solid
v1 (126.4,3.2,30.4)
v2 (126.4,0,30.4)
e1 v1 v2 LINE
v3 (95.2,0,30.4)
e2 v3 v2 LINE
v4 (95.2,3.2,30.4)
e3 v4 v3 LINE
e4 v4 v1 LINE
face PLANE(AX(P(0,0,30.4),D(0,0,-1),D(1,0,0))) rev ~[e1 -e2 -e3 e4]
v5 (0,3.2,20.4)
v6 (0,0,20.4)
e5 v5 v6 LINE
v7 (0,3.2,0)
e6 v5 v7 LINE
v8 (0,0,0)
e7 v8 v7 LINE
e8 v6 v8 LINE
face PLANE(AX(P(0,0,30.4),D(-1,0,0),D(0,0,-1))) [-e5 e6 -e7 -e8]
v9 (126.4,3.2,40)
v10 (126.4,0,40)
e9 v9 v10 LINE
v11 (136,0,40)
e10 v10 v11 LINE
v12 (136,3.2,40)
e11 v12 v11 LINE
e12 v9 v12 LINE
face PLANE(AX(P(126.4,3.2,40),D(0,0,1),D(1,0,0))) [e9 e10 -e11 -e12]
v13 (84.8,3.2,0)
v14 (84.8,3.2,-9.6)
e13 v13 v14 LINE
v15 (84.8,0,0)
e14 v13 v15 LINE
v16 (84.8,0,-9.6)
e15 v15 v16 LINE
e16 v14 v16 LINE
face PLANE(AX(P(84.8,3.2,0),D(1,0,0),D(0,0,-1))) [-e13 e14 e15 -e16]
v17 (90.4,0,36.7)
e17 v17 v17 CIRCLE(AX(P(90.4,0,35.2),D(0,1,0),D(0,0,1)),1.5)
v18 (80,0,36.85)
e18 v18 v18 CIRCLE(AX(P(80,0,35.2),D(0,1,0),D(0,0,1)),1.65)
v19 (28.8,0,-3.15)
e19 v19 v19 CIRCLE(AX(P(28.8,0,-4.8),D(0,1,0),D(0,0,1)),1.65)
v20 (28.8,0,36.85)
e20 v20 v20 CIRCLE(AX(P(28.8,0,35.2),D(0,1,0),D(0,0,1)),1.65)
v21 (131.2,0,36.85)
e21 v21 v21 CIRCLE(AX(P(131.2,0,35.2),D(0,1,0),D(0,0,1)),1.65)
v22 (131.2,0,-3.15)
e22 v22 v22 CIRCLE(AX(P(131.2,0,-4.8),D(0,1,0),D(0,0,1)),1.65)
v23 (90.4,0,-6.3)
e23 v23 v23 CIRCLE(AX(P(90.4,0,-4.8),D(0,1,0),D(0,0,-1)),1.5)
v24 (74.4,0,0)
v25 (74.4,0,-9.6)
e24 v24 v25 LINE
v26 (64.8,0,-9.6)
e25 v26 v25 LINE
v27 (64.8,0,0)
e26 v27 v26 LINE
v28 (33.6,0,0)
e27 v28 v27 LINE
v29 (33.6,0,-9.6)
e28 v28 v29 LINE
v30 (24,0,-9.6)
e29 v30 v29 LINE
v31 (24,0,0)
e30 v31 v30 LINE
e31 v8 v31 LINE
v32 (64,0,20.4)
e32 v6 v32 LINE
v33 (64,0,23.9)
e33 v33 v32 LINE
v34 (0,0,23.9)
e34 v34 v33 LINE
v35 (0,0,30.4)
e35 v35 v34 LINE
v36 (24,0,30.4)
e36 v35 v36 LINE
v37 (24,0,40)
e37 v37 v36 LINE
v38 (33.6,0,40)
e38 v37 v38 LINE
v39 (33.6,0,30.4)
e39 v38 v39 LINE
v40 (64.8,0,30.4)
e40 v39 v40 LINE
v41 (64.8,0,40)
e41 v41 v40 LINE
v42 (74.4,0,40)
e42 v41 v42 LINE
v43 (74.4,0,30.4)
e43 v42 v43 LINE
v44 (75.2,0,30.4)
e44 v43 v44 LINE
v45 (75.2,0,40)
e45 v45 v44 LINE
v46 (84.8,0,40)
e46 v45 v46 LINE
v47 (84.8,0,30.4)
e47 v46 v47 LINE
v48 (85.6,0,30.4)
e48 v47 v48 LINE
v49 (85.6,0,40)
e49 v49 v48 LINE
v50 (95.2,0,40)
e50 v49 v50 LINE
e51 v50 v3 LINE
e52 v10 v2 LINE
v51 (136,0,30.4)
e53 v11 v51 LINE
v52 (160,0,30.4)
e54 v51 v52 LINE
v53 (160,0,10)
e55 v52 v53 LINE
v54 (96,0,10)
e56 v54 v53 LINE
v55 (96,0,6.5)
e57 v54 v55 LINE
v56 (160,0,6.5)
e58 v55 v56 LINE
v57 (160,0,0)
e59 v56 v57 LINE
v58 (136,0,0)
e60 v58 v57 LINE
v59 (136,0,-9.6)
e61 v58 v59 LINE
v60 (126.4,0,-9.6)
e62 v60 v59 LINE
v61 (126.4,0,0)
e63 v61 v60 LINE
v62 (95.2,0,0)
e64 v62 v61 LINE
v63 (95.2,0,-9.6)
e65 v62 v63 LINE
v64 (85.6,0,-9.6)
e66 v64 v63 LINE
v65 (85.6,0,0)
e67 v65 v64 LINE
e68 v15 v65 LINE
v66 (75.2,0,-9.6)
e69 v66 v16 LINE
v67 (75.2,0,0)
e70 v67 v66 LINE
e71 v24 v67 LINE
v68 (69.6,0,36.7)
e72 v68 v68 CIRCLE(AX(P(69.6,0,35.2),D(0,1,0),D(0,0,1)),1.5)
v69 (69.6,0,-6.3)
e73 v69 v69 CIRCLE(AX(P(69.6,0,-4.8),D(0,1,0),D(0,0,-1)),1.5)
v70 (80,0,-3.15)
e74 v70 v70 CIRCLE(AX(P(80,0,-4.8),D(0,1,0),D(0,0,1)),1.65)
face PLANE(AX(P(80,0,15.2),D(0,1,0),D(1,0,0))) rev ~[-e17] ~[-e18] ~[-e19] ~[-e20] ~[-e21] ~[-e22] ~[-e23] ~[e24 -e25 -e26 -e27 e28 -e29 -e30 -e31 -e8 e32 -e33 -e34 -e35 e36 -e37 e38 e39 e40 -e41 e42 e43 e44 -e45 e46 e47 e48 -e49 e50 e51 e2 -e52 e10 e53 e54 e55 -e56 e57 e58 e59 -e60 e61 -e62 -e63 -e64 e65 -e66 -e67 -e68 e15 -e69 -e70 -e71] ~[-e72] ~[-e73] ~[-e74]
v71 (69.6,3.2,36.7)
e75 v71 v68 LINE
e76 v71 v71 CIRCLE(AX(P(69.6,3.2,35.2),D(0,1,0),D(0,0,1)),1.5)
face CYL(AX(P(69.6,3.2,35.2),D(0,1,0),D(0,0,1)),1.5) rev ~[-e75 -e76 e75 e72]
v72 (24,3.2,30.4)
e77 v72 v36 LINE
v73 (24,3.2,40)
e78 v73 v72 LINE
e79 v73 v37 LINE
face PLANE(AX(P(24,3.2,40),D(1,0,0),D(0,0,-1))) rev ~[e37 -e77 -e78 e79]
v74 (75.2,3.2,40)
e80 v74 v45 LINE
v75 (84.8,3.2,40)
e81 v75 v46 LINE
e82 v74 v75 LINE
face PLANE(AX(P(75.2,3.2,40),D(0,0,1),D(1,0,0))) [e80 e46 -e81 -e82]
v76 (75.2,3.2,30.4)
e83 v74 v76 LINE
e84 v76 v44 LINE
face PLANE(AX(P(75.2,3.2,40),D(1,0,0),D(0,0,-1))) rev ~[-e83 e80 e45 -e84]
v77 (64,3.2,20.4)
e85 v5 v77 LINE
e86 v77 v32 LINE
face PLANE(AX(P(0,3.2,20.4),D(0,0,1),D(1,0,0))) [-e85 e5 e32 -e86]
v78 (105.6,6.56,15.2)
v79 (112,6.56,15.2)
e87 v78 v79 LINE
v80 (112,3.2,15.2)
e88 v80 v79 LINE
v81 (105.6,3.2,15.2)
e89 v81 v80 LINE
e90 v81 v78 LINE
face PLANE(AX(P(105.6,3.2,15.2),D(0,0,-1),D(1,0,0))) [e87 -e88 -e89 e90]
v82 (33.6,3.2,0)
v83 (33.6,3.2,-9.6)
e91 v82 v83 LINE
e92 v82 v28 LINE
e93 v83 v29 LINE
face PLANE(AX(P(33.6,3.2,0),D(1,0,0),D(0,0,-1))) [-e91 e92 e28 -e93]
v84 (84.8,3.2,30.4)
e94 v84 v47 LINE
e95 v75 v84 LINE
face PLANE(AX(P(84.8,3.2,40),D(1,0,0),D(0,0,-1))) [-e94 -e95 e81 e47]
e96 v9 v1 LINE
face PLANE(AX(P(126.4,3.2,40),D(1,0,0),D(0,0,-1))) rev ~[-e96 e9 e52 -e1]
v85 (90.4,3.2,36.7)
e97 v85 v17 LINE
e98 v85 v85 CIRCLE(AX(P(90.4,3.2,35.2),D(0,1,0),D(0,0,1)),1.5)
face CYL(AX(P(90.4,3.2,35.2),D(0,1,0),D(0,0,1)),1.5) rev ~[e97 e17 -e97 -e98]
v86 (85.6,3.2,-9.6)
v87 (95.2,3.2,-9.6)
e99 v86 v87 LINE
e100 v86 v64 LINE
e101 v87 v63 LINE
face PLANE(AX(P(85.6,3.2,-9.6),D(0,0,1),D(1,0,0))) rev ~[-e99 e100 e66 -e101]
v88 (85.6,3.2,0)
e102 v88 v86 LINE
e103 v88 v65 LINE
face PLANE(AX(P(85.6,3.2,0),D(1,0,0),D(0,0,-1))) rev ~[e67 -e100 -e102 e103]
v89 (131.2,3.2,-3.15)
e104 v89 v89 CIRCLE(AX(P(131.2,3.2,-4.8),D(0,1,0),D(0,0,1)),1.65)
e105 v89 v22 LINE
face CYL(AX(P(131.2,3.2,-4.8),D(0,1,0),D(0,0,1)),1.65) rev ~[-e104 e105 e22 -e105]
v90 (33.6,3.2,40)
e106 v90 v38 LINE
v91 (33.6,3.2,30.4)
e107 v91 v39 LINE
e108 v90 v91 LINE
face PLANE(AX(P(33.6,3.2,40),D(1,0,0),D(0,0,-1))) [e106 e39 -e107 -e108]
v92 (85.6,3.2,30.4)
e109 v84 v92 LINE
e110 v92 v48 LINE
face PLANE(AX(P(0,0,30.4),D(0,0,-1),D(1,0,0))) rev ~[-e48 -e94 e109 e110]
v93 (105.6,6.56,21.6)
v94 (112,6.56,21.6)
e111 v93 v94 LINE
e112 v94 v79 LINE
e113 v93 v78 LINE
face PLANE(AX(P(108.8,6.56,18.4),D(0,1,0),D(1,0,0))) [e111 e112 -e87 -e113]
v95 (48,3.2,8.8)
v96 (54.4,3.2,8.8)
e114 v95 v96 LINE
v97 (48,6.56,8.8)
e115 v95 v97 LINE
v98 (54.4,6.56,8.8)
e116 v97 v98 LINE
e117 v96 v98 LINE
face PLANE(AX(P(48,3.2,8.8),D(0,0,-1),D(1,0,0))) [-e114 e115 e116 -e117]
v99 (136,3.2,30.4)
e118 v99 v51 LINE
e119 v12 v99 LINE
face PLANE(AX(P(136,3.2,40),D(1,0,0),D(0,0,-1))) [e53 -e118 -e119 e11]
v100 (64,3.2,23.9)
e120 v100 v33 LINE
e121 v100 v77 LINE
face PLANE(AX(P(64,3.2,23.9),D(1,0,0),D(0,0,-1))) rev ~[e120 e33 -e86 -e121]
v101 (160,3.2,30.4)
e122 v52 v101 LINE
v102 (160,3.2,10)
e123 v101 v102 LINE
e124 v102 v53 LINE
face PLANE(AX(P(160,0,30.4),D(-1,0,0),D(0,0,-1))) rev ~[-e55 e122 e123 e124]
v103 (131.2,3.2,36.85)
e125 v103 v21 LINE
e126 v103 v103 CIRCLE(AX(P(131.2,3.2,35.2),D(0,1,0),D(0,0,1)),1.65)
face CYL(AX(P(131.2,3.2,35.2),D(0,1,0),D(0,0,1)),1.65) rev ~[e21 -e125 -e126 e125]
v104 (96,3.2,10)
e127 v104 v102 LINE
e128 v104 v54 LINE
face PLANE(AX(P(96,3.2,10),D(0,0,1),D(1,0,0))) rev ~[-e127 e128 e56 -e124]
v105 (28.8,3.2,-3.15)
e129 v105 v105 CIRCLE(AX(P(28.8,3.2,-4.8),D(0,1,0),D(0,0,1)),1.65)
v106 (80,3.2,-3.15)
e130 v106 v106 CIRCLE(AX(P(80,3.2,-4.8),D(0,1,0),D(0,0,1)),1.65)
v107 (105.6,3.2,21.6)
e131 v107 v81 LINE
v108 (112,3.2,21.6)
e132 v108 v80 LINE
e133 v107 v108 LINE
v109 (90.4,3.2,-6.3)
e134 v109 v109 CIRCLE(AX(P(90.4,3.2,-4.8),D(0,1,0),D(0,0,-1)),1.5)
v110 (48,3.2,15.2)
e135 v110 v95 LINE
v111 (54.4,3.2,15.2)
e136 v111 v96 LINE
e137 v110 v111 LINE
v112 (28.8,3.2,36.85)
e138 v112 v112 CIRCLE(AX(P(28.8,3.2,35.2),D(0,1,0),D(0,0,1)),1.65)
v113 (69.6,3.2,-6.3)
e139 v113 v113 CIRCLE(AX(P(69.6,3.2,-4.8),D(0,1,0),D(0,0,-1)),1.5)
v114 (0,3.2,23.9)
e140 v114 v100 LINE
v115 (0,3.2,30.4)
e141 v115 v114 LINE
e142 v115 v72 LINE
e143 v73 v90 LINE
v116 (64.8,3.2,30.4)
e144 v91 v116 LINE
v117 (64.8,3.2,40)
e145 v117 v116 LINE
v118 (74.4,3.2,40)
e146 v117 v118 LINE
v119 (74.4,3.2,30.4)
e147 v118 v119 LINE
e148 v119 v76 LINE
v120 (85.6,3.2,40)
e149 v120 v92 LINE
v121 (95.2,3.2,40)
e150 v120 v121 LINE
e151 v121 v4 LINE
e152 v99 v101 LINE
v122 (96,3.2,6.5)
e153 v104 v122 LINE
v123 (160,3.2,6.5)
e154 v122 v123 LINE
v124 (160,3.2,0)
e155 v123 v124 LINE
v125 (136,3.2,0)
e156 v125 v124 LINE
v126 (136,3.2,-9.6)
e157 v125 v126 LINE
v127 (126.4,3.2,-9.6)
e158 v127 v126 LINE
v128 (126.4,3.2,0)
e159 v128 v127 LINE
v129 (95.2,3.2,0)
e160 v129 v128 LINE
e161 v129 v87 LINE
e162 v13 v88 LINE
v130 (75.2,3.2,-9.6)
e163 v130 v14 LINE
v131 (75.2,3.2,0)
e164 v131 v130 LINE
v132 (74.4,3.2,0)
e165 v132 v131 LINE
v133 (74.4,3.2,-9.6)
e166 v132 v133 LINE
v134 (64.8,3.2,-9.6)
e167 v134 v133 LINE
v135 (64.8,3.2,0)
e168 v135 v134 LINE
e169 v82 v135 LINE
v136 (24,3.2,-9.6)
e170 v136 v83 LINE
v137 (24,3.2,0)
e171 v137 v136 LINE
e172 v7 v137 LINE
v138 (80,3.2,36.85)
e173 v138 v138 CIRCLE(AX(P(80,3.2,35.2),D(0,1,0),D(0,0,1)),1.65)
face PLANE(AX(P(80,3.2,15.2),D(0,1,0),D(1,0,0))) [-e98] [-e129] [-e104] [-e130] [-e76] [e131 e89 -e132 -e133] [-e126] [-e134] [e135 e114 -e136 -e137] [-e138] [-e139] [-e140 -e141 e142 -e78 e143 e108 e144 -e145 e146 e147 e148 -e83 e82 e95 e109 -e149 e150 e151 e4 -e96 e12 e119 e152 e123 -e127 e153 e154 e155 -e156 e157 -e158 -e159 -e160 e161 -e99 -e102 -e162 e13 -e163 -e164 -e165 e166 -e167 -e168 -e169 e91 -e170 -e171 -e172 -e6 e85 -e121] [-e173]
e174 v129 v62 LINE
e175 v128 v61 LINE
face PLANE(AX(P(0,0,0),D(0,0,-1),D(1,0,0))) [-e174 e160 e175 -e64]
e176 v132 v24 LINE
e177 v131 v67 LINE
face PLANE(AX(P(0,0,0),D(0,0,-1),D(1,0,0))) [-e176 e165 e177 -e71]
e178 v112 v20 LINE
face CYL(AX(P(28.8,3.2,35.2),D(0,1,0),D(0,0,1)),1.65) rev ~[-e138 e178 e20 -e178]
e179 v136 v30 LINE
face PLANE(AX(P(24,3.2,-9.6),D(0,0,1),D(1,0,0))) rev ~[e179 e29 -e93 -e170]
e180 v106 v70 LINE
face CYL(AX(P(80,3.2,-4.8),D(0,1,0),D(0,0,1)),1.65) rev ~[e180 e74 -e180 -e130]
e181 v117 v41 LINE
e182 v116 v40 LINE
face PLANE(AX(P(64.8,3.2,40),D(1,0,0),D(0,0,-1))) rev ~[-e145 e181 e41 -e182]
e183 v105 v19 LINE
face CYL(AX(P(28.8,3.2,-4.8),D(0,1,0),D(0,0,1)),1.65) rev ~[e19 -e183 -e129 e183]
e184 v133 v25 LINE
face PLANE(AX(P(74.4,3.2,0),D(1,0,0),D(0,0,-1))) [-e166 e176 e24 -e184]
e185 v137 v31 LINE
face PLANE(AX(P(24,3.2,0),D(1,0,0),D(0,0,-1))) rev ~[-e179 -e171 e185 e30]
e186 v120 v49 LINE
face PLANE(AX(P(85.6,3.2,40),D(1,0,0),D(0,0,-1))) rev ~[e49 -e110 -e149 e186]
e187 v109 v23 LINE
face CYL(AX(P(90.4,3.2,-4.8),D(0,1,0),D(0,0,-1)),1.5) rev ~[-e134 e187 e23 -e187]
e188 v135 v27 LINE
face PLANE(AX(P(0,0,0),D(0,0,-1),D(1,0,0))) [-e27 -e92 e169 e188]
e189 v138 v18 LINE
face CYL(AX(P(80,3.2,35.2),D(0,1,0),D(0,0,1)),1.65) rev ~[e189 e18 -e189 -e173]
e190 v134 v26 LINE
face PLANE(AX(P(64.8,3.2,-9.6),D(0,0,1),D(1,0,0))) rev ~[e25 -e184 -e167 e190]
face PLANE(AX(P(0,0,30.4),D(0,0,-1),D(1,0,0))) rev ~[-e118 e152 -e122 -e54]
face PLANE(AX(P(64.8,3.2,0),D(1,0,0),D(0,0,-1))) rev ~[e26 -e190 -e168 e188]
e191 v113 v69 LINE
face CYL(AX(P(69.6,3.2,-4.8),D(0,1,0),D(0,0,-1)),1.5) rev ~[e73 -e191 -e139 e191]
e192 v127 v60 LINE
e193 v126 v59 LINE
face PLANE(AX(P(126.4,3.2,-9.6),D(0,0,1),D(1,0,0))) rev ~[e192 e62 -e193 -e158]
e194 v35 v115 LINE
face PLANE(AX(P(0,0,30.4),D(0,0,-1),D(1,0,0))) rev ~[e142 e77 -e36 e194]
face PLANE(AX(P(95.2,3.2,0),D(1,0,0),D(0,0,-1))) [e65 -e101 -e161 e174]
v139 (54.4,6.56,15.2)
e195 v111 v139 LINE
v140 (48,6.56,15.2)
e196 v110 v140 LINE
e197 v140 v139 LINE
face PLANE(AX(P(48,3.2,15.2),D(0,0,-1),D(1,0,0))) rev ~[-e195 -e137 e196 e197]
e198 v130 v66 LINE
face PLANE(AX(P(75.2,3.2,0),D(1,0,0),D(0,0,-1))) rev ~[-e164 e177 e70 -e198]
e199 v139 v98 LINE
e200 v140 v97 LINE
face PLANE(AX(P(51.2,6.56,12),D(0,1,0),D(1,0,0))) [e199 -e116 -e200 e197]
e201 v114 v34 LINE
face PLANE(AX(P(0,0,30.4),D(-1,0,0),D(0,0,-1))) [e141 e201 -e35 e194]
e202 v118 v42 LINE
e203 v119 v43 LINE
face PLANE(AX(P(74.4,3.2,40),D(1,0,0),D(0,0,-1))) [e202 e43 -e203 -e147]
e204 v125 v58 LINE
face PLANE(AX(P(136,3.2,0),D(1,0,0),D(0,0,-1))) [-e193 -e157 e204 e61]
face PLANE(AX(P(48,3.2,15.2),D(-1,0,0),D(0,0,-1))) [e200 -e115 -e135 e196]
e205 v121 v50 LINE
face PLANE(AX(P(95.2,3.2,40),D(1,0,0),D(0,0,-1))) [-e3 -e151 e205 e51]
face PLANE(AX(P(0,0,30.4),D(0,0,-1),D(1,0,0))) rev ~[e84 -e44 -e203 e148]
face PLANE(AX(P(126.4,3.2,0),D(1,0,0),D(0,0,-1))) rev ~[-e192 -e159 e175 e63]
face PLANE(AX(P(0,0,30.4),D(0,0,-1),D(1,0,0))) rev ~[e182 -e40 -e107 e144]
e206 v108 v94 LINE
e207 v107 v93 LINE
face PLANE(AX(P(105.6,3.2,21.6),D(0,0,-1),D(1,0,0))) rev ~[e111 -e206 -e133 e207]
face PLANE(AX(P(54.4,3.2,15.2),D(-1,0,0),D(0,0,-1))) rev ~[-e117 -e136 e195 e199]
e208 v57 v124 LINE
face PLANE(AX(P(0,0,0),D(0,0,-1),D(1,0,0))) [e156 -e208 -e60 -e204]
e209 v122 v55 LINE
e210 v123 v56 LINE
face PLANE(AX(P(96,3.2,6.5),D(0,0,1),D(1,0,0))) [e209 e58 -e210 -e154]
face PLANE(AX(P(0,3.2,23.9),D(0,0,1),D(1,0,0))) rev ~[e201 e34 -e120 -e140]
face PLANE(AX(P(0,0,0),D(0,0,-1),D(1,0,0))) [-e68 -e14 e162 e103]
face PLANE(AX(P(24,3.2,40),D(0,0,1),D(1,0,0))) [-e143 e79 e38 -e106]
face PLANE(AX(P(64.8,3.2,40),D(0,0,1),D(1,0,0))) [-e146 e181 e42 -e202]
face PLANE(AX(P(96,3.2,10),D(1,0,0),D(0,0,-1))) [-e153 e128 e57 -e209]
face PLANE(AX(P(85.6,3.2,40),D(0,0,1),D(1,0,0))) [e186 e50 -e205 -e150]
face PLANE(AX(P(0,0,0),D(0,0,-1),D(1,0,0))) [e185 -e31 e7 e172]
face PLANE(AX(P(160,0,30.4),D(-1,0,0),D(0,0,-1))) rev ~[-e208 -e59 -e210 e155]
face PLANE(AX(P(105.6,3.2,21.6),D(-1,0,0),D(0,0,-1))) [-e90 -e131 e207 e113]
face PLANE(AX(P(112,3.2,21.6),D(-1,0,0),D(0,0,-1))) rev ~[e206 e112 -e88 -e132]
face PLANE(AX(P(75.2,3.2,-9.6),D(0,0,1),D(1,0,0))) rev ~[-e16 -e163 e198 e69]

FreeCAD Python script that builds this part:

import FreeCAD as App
import Part
import Sketcher

V = App.Vector
Q = App.Units.Quantity

doc = App.newDocument("Part")
body = doc.addObject("PartDesign::Body", "Body")

# Sketch on XZ plane
sketch1 = doc.addObject("Sketcher::SketchObject", "Sketch")
body.addObject(sketch1)
sketch1.AttachmentSupport = (doc.XZ_Plane, [""])
sketch1.MapMode = "FlatFace"
sketch1.addGeometry(Part.LineSegment(V(0, 0, 0), V(0, 30.4, 0)), False)
sketch1.addGeometry(Part.LineSegment(V(0, 30.4, 0), V(160, 30.4, 0)), False)
sketch1.addGeometry(Part.LineSegment(V(160, 30.4, 0), V(160, 0, 0)), False)
sketch1.addGeometry(Part.LineSegment(V(160, 0, 0), V(0, 0, 0)), False)
sketch1.addConstraint(Sketcher.Constraint("Coincident", 0, 2, 1, 1))
sketch1.addConstraint(Sketcher.Constraint("Coincident", 1, 2, 2, 1))
sketch1.addConstraint(Sketcher.Constraint("Coincident", 2, 2, 3, 1))
sketch1.addConstraint(Sketcher.Constraint("Coincident", 3, 2, 0, 1))
sketch1.addConstraint(Sketcher.Constraint("Vertical", 0))
sketch1.addConstraint(Sketcher.Constraint("Horizontal", 1))
sketch1.addConstraint(Sketcher.Constraint("Vertical", 2))
sketch1.addConstraint(Sketcher.Constraint("Horizontal", 3))
sketch1.addConstraint(Sketcher.Constraint("Coincident", 3, 2, -1, 1))
sketch1.addConstraint(Sketcher.Constraint("DistanceX", 1, 1, 1, 2, Q("160 mm")))
sketch1.addConstraint(Sketcher.Constraint("DistanceY", 0, 1, 0, 2, Q("30.4 mm")))
pad1 = doc.addObject("PartDesign::Pad", "Pad")
body.addObject(pad1)
pad1.Profile = sketch1
pad1.Length = 3.2
pad1.Reversed = True

# Sketch on XZ plane
sketch2 = doc.addObject("Sketcher::SketchObject", "Sketch001")
body.addObject(sketch2)
sketch2.AttachmentSupport = (doc.XZ_Plane, [""])
sketch2.MapMode = "FlatFace"
sketch2.AttachmentOffset = App.Placement(V(0, 0, -3.2), App.Rotation())
sketch2.addGeometry(Part.LineSegment(V(24, 30.4, 0), V(24, 40, 0)), False)
sketch2.addGeometry(Part.LineSegment(V(24, 40, 0), V(33.6, 40, 0)), False)
sketch2.addGeometry(Part.LineSegment(V(33.6, 40, 0), V(33.6, 30.4, 0)), False)
sketch2.addGeometry(Part.LineSegment(V(33.6, 30.4, 0), V(24, 30.4, 0)), False)
sketch2.addGeometry(Part.Circle(V(28.8, 35.2, 0), V(0, 0, 1), 1.65), False)
sketch2.addGeometry(Part.LineSegment(V(75.2, 30.4, 0), V(75.2, 40, 0)), False)
sketch2.addGeometry(Part.LineSegment(V(75.2, 40, 0), V(84.8, 40, 0)), False)
sketch2.addGeometry(Part.LineSegment(V(84.8, 40, 0), V(84.8, 30.4, 0)), False)
sketch2.addGeometry(Part.LineSegment(V(84.8, 30.4, 0), V(75.2, 30.4, 0)), False)
sketch2.addGeometry(Part.Circle(V(80, 35.2, 0), V(0, 0, 1), 1.65), False)
sketch2.addGeometry(Part.LineSegment(V(126.4, 30.4, 0), V(126.4, 40, 0)), False)
sketch2.addGeometry(Part.LineSegment(V(126.4, 40, 0), V(136, 40, 0)), False)
sketch2.addGeometry(Part.LineSegment(V(136, 40, 0), V(136, 30.4, 0)), False)
sketch2.addGeometry(Part.LineSegment(V(136, 30.4, 0), V(126.4, 30.4, 0)), False)
sketch2.addGeometry(Part.Circle(V(131.2, 35.2, 0), V(0, 0, 1), 1.65), False)
sketch2.addGeometry(Part.LineSegment(V(75.2, -9.6, 0), V(75.2, 0, 0)), False)
sketch2.addGeometry(Part.LineSegment(V(75.2, 0, 0), V(84.8, 0, 0)), False)
sketch2.addGeometry(Part.LineSegment(V(84.8, 0, 0), V(84.8, -9.6, 0)), False)
sketch2.addGeometry(Part.LineSegment(V(84.8, -9.6, 0), V(75.2, -9.6, 0)), False)
sketch2.addGeometry(Part.Circle(V(80, -4.8, 0), V(0, 0, 1), 1.65), False)
sketch2.addGeometry(Part.LineSegment(V(126.4, -9.6, 0), V(126.4, 0, 0)), False)
sketch2.addGeometry(Part.LineSegment(V(126.4, 0, 0), V(136, 0, 0)), False)
sketch2.addGeometry(Part.LineSegment(V(136, 0, 0), V(136, -9.6, 0)), False)
sketch2.addGeometry(Part.LineSegment(V(136, -9.6, 0), V(126.4, -9.6, 0)), False)
sketch2.addGeometry(Part.Circle(V(131.2, -4.8, 0), V(0, 0, 1), 1.65), False)
sketch2.addGeometry(Part.LineSegment(V(24, -9.6, 0), V(24, 0, 0)), False)
sketch2.addGeometry(Part.LineSegment(V(24, 0, 0), V(33.6, 0, 0)), False)
sketch2.addGeometry(Part.LineSegment(V(33.6, 0, 0), V(33.6, -9.6, 0)), False)
sketch2.addGeometry(Part.LineSegment(V(33.6, -9.6, 0), V(24, -9.6, 0)), False)
sketch2.addGeometry(Part.Circle(V(28.8, -4.8, 0), V(0, 0, 1), 1.65), False)
sketch2.addConstraint(Sketcher.Constraint("Coincident", 0, 2, 1, 1))
sketch2.addConstraint(Sketcher.Constraint("Coincident", 1, 2, 2, 1))
sketch2.addConstraint(Sketcher.Constraint("Coincident", 2, 2, 3, 1))
sketch2.addConstraint(Sketcher.Constraint("Coincident", 3, 2, 0, 1))
sketch2.addConstraint(Sketcher.Constraint("Coincident", 5, 2, 6, 1))
sketch2.addConstraint(Sketcher.Constraint("Coincident", 6, 2, 7, 1))
sketch2.addConstraint(Sketcher.Constraint("Coincident", 7, 2, 8, 1))
sketch2.addConstraint(Sketcher.Constraint("Coincident", 8, 2, 5, 1))
sketch2.addConstraint(Sketcher.Constraint("Coincident", 10, 2, 11, 1))
sketch2.addConstraint(Sketcher.Constraint("Coincident", 11, 2, 12, 1))
sketch2.addConstraint(Sketcher.Constraint("Coincident", 12, 2, 13, 1))
sketch2.addConstraint(Sketcher.Constraint("Coincident", 13, 2, 10, 1))
sketch2.addConstraint(Sketcher.Constraint("Coincident", 15, 2, 16, 1))
sketch2.addConstraint(Sketcher.Constraint("Coincident", 16, 2, 17, 1))
sketch2.addConstraint(Sketcher.Constraint("Coincident", 17, 2, 18, 1))
sketch2.addConstraint(Sketcher.Constraint("Coincident", 18, 2, 15, 1))
sketch2.addConstraint(Sketcher.Constraint("Coincident", 20, 2, 21, 1))
sketch2.addConstraint(Sketcher.Constraint("Coincident", 21, 2, 22, 1))
sketch2.addConstraint(Sketcher.Constraint("Coincident", 22, 2, 23, 1))
sketch2.addConstraint(Sketcher.Constraint("Coincident", 23, 2, 20, 1))
sketch2.addConstraint(Sketcher.Constraint("Coincident", 25, 2, 26, 1))
sketch2.addConstraint(Sketcher.Constraint("Coincident", 26, 2, 27, 1))
sketch2.addConstraint(Sketcher.Constraint("Coincident", 27, 2, 28, 1))
sketch2.addConstraint(Sketcher.Constraint("Coincident", 28, 2, 25, 1))
sketch2.addConstraint(Sketcher.Constraint("Vertical", 0))
sketch2.addConstraint(Sketcher.Constraint("Horizontal", 1))
sketch2.addConstraint(Sketcher.Constraint("Vertical", 2))
sketch2.addConstraint(Sketcher.Constraint("Horizontal", 3))
sketch2.addConstraint(Sketcher.Constraint("Vertical", 5))
sketch2.addConstraint(Sketcher.Constraint("Horizontal", 6))
sketch2.addConstraint(Sketcher.Constraint("Vertical", 7))
sketch2.addConstraint(Sketcher.Constraint("Horizontal", 8))
sketch2.addConstraint(Sketcher.Constraint("Vertical", 10))
sketch2.addConstraint(Sketcher.Constraint("Horizontal", 11))
sketch2.addConstraint(Sketcher.Constraint("Vertical", 12))
sketch2.addConstraint(Sketcher.Constraint("Horizontal", 13))
sketch2.addConstraint(Sketcher.Constraint("Vertical", 15))
sketch2.addConstraint(Sketcher.Constraint("Horizontal", 16))
sketch2.addConstraint(Sketcher.Constraint("Vertical", 17))
sketch2.addConstraint(Sketcher.Constraint("Horizontal", 18))
sketch2.addConstraint(Sketcher.Constraint("Vertical", 20))
sketch2.addConstraint(Sketcher.Constraint("Horizontal", 21))
sketch2.addConstraint(Sketcher.Constraint("Vertical", 22))
sketch2.addConstraint(Sketcher.Constraint("Horizontal", 23))
sketch2.addConstraint(Sketcher.Constraint("Vertical", 25))
sketch2.addConstraint(Sketcher.Constraint("Horizontal", 26))
sketch2.addConstraint(Sketcher.Constraint("Vertical", 27))
sketch2.addConstraint(Sketcher.Constraint("Horizontal", 28))
sketch2.addConstraint(Sketcher.Constraint("Equal", 4, 9))
sketch2.addConstraint(Sketcher.Constraint("Equal", 9, 14))
sketch2.addConstraint(Sketcher.Constraint("Equal", 14, 19))
sketch2.addConstraint(Sketcher.Constraint("Equal", 19, 24))
sketch2.addConstraint(Sketcher.Constraint("Equal", 24, 29))
sketch2.addConstraint(Sketcher.Constraint("PointOnObject", 15, 2, -1))
sketch2.addConstraint(Sketcher.Constraint("PointOnObject", 20, 2, -1))
sketch2.addConstraint(Sketcher.Constraint("PointOnObject", 25, 2, -1))
sketch2.addConstraint(Sketcher.Constraint("Horizontal", 4, 3, 9, 3))
sketch2.addConstraint(Sketcher.Constraint("Horizontal", 9, 3, 14, 3))
sketch2.addConstraint(Sketcher.Constraint("Horizontal", 19, 3, 24, 3))
sketch2.addConstraint(Sketcher.Constraint("Horizontal", 24, 3, 29, 3))
sketch2.addConstraint(Sketcher.Constraint("Horizontal", 1, 2, 5, 2))
sketch2.addConstraint(Sketcher.Constraint("Horizontal", 3, 2, 7, 2))
sketch2.addConstraint(Sketcher.Constraint("Horizontal", 6, 2, 10, 2))
sketch2.addConstraint(Sketcher.Constraint("Horizontal", 8, 2, 12, 2))
sketch2.addConstraint(Sketcher.Constraint("Horizontal", 18, 2, 22, 2))
sketch2.addConstraint(Sketcher.Constraint("Horizontal", 23, 2, 27, 2))
sketch2.addConstraint(Sketcher.Constraint("Vertical", 9, 3, 19, 3))
sketch2.addConstraint(Sketcher.Constraint("Vertical", 14, 3, 24, 3))
sketch2.addConstraint(Sketcher.Constraint("Vertical", 4, 3, 29, 3))
sketch2.addConstraint(Sketcher.Constraint("Vertical", 8, 2, 15, 2))
sketch2.addConstraint(Sketcher.Constraint("Vertical", 7, 2, 16, 2))
sketch2.addConstraint(Sketcher.Constraint("Vertical", 13, 2, 20, 2))
sketch2.addConstraint(Sketcher.Constraint("Vertical", 12, 2, 21, 2))
sketch2.addConstraint(Sketcher.Constraint("Vertical", 3, 2, 25, 2))
sketch2.addConstraint(Sketcher.Constraint("Vertical", 2, 2, 26, 2))
sketch2.addConstraint(Sketcher.Constraint("Equal", 3, 6))
sketch2.addConstraint(Sketcher.Constraint("Equal", 8, 11))
sketch2.addConstraint(Sketcher.Constraint("Equal", 28, 0))
sketch2.addConstraint(Sketcher.Constraint("Equal", 12, 15))
sketch2.addConstraint(Sketcher.Constraint("Diameter", 4, Q("3.3 mm")))
sketch2.addConstraint(Sketcher.Constraint("DistanceX", 1, 1, 1, 2, Q("9.6 mm")))
sketch2.addConstraint(Sketcher.Constraint("DistanceX", -1, 1, 9, 3, Q("80 mm")))
sketch2.addConstraint(Sketcher.Constraint("DistanceX", -1, 1, 0, 2, Q("24 mm")))
sketch2.addConstraint(Sketcher.Constraint("DistanceY", -1, 1, 0, 2, Q("40 mm")))
sketch2.addConstraint(Sketcher.Constraint("DistanceX", -1, 1, 11, 2, Q("136 mm")))
sketch2.addConstraint(Sketcher.Constraint("DistanceY", 19, 3, 9, 3, Q("40 mm")))
sketch2.addConstraint(Sketcher.Constraint("DistanceX", -1, 1, 4, 3, Q("28.8 mm")))
sketch2.addConstraint(Sketcher.Constraint("DistanceY", -1, 1, 4, 3, Q("35.2 mm")))
sketch2.addConstraint(Sketcher.Constraint("DistanceX", -1, 1, 14, 3, Q("131.2 mm")))
sketch2.addConstraint(Sketcher.Constraint("DistanceX", -1, 1, 5, 2, Q("75.2 mm")))
pad2 = doc.addObject("PartDesign::Pad", "Pad001")
body.addObject(pad2)
pad2.Profile = sketch2
pad2.Length = 3.2

# Sketch on XZ plane
sketch3 = doc.addObject("Sketcher::SketchObject", "Sketch002")
body.addObject(sketch3)
sketch3.AttachmentSupport = (doc.XZ_Plane, [""])
sketch3.MapMode = "FlatFace"
sketch3.AttachmentOffset = App.Placement(V(0, 0, -3.2), App.Rotation())
sketch3.addGeometry(Part.LineSegment(V(0, 20.4, 0), V(0, 23.9, 0)), False)
sketch3.addGeometry(Part.LineSegment(V(0, 23.9, 0), V(64, 23.9, 0)), False)
sketch3.addGeometry(Part.LineSegment(V(64, 23.9, 0), V(64, 20.4, 0)), False)
sketch3.addGeometry(Part.LineSegment(V(64, 20.4, 0), V(0, 20.4, 0)), False)
sketch3.addGeometry(Part.LineSegment(V(96, 6.5, 0), V(96, 10, 0)), False)
sketch3.addGeometry(Part.LineSegment(V(96, 10, 0), V(160, 10, 0)), False)
sketch3.addGeometry(Part.LineSegment(V(160, 10, 0), V(160, 6.5, 0)), False)
sketch3.addGeometry(Part.LineSegment(V(160, 6.5, 0), V(96, 6.5, 0)), False)
sketch3.addConstraint(Sketcher.Constraint("Coincident", 0, 2, 1, 1))
sketch3.addConstraint(Sketcher.Constraint("Coincident", 1, 2, 2, 1))
sketch3.addConstraint(Sketcher.Constraint("Coincident", 2, 2, 3, 1))
sketch3.addConstraint(Sketcher.Constraint("Coincident", 3, 2, 0, 1))
sketch3.addConstraint(Sketcher.Constraint("Coincident", 4, 2, 5, 1))
sketch3.addConstraint(Sketcher.Constraint("Coincident", 5, 2, 6, 1))
sketch3.addConstraint(Sketcher.Constraint("Coincident", 6, 2, 7, 1))
sketch3.addConstraint(Sketcher.Constraint("Coincident", 7, 2, 4, 1))
sketch3.addConstraint(Sketcher.Constraint("Vertical", 0))
sketch3.addConstraint(Sketcher.Constraint("Horizontal", 1))
sketch3.addConstraint(Sketcher.Constraint("Vertical", 2))
sketch3.addConstraint(Sketcher.Constraint("Horizontal", 3))
sketch3.addConstraint(Sketcher.Constraint("Vertical", 4))
sketch3.addConstraint(Sketcher.Constraint("Horizontal", 5))
sketch3.addConstraint(Sketcher.Constraint("Vertical", 6))
sketch3.addConstraint(Sketcher.Constraint("Horizontal", 7))
sketch3.addConstraint(Sketcher.Constraint("PointOnObject", 0, 2, -2))
sketch3.addConstraint(Sketcher.Constraint("Equal", 3, 5))
sketch3.addConstraint(Sketcher.Constraint("Equal", 2, 4))
sketch3.addConstraint(Sketcher.Constraint("DistanceX", 1, 1, 1, 2, Q("64 mm")))
sketch3.addConstraint(Sketcher.Constraint("DistanceY", 0, 1, 0, 2, Q("3.5 mm")))
sketch3.addConstraint(Sketcher.Constraint("DistanceX", -1, 1, 4, 2, Q("96 mm")))
sketch3.addConstraint(Sketcher.Constraint("DistanceY", -1, 1, 4, 2, Q("10 mm")))
sketch3.addConstraint(Sketcher.Constraint("DistanceY", -1, 1, 0, 2, Q("23.9 mm")))
pocket1 = doc.addObject("PartDesign::Pocket", "Pocket")
body.addObject(pocket1)
pocket1.Profile = sketch3
pocket1.Type = "ThroughAll"
pocket1.Reversed = True

# Sketch on XZ plane
sketch4 = doc.addObject("Sketcher::SketchObject", "Sketch003")
body.addObject(sketch4)
sketch4.AttachmentSupport = (doc.XZ_Plane, [""])
sketch4.MapMode = "FlatFace"
sketch4.AttachmentOffset = App.Placement(V(0, 0, -3.2), App.Rotation())
sketch4.addGeometry(Part.LineSegment(V(64.8, 30.4, 0), V(64.8, 40, 0)), False)
sketch4.addGeometry(Part.LineSegment(V(64.8, 40, 0), V(74.4, 40, 0)), False)
sketch4.addGeometry(Part.LineSegment(V(74.4, 40, 0), V(74.4, 30.4, 0)), False)
sketch4.addGeometry(Part.LineSegment(V(74.4, 30.4, 0), V(64.8, 30.4, 0)), False)
sketch4.addGeometry(Part.Circle(V(69.6, 35.2, 0), V(0, 0, 1), 1.5), False)
sketch4.addGeometry(Part.LineSegment(V(85.6, 30.4, 0), V(85.6, 40, 0)), False)
sketch4.addGeometry(Part.LineSegment(V(85.6, 40, 0), V(95.2, 40, 0)), False)
sketch4.addGeometry(Part.LineSegment(V(95.2, 40, 0), V(95.2, 30.4, 0)), False)
sketch4.addGeometry(Part.LineSegment(V(95.2, 30.4, 0), V(85.6, 30.4, 0)), False)
sketch4.addGeometry(Part.Circle(V(90.4, 35.2, 0), V(0, 0, 1), 1.5), False)
sketch4.addGeometry(Part.LineSegment(V(85.6, -9.6, 0), V(85.6, 0, 0)), False)
sketch4.addGeometry(Part.LineSegment(V(85.6, 0, 0), V(95.2, 0, 0)), False)
sketch4.addGeometry(Part.LineSegment(V(95.2, 0, 0), V(95.2, -9.6, 0)), False)
sketch4.addGeometry(Part.LineSegment(V(95.2, -9.6, 0), V(85.6, -9.6, 0)), False)
sketch4.addGeometry(Part.Circle(V(90.4, -4.8, 0), V(0, 0, 1), 1.5), False)
sketch4.addGeometry(Part.LineSegment(V(64.8, -9.6, 0), V(64.8, 0, 0)), False)
sketch4.addGeometry(Part.LineSegment(V(64.8, 0, 0), V(74.4, 0, 0)), False)
sketch4.addGeometry(Part.LineSegment(V(74.4, 0, 0), V(74.4, -9.6, 0)), False)
sketch4.addGeometry(Part.LineSegment(V(74.4, -9.6, 0), V(64.8, -9.6, 0)), False)
sketch4.addGeometry(Part.Circle(V(69.6, -4.8, 0), V(0, 0, 1), 1.5), False)
sketch4.addConstraint(Sketcher.Constraint("Coincident", 0, 2, 1, 1))
sketch4.addConstraint(Sketcher.Constraint("Coincident", 1, 2, 2, 1))
sketch4.addConstraint(Sketcher.Constraint("Coincident", 2, 2, 3, 1))
sketch4.addConstraint(Sketcher.Constraint("Coincident", 3, 2, 0, 1))
sketch4.addConstraint(Sketcher.Constraint("Coincident", 5, 2, 6, 1))
sketch4.addConstraint(Sketcher.Constraint("Coincident", 6, 2, 7, 1))
sketch4.addConstraint(Sketcher.Constraint("Coincident", 7, 2, 8, 1))
sketch4.addConstraint(Sketcher.Constraint("Coincident", 8, 2, 5, 1))
sketch4.addConstraint(Sketcher.Constraint("Coincident", 10, 2, 11, 1))
sketch4.addConstraint(Sketcher.Constraint("Coincident", 11, 2, 12, 1))
sketch4.addConstraint(Sketcher.Constraint("Coincident", 12, 2, 13, 1))
sketch4.addConstraint(Sketcher.Constraint("Coincident", 13, 2, 10, 1))
sketch4.addConstraint(Sketcher.Constraint("Coincident", 15, 2, 16, 1))
sketch4.addConstraint(Sketcher.Constraint("Coincident", 16, 2, 17, 1))
sketch4.addConstraint(Sketcher.Constraint("Coincident", 17, 2, 18, 1))
sketch4.addConstraint(Sketcher.Constraint("Coincident", 18, 2, 15, 1))
sketch4.addConstraint(Sketcher.Constraint("Vertical", 0))
sketch4.addConstraint(Sketcher.Constraint("Horizontal", 1))
sketch4.addConstraint(Sketcher.Constraint("Vertical", 2))
sketch4.addConstraint(Sketcher.Constraint("Horizontal", 3))
sketch4.addConstraint(Sketcher.Constraint("Vertical", 5))
sketch4.addConstraint(Sketcher.Constraint("Horizontal", 6))
sketch4.addConstraint(Sketcher.Constraint("Vertical", 7))
sketch4.addConstraint(Sketcher.Constraint("Horizontal", 8))
sketch4.addConstraint(Sketcher.Constraint("Vertical", 10))
sketch4.addConstraint(Sketcher.Constraint("Horizontal", 11))
sketch4.addConstraint(Sketcher.Constraint("Vertical", 12))
sketch4.addConstraint(Sketcher.Constraint("Horizontal", 13))
sketch4.addConstraint(Sketcher.Constraint("Vertical", 15))
sketch4.addConstraint(Sketcher.Constraint("Horizontal", 16))
sketch4.addConstraint(Sketcher.Constraint("Vertical", 17))
sketch4.addConstraint(Sketcher.Constraint("Horizontal", 18))
sketch4.addConstraint(Sketcher.Constraint("Equal", 4, 9))
sketch4.addConstraint(Sketcher.Constraint("Equal", 9, 14))
sketch4.addConstraint(Sketcher.Constraint("Equal", 14, 19))
sketch4.addConstraint(Sketcher.Constraint("PointOnObject", 10, 2, -1))
sketch4.addConstraint(Sketcher.Constraint("PointOnObject", 15, 2, -1))
sketch4.addConstraint(Sketcher.Constraint("Horizontal", 4, 3, 9, 3))
sketch4.addConstraint(Sketcher.Constraint("Horizontal", 14, 3, 19, 3))
sketch4.addConstraint(Sketcher.Constraint("Horizontal", 1, 2, 5, 2))
sketch4.addConstraint(Sketcher.Constraint("Horizontal", 3, 2, 7, 2))
sketch4.addConstraint(Sketcher.Constraint("Horizontal", 13, 2, 17, 2))
sketch4.addConstraint(Sketcher.Constraint("Vertical", 9, 3, 14, 3))
sketch4.addConstraint(Sketcher.Constraint("Vertical", 4, 3, 19, 3))
sketch4.addConstraint(Sketcher.Constraint("Vertical", 8, 2, 10, 2))
sketch4.addConstraint(Sketcher.Constraint("Vertical", 7, 2, 11, 2))
sketch4.addConstraint(Sketcher.Constraint("Vertical", 3, 2, 15, 2))
sketch4.addConstraint(Sketcher.Constraint("Vertical", 2, 2, 16, 2))
sketch4.addConstraint(Sketcher.Constraint("Equal", 3, 6))
sketch4.addConstraint(Sketcher.Constraint("Equal", 18, 0))
sketch4.addConstraint(Sketcher.Constraint("Equal", 7, 10))
sketch4.addConstraint(Sketcher.Constraint("Diameter", 4, Q("3 mm")))
sketch4.addConstraint(Sketcher.Constraint("DistanceX", 1, 1, 1, 2, Q("9.6 mm")))
sketch4.addConstraint(Sketcher.Constraint("DistanceY", -1, 1, 0, 2, Q("40 mm")))
sketch4.addConstraint(Sketcher.Constraint("DistanceY", 14, 3, 9, 3, Q("40 mm")))
sketch4.addConstraint(Sketcher.Constraint("DistanceX", 1, 2, 9, 3, Q("16 mm")))
sketch4.addConstraint(Sketcher.Constraint("DistanceX", 4, 3, 5, 2, Q("16 mm")))
sketch4.addConstraint(Sketcher.Constraint("DistanceX", -1, 1, 4, 3, Q("69.6 mm")))
sketch4.addConstraint(Sketcher.Constraint("DistanceY", -1, 1, 4, 3, Q("35.2 mm")))
sketch4.addConstraint(Sketcher.Constraint("DistanceX", -1, 1, 9, 3, Q("90.4 mm")))
pad3 = doc.addObject("PartDesign::Pad", "Pad002")
body.addObject(pad3)
pad3.Profile = sketch4
pad3.Length = 3.2

# Sketch on XZ plane
sketch5 = doc.addObject("Sketcher::SketchObject", "Sketch004")
body.addObject(sketch5)
sketch5.AttachmentSupport = (doc.XZ_Plane, [""])
sketch5.MapMode = "FlatFace"
sketch5.AttachmentOffset = App.Placement(V(0, 0, -3.2), App.Rotation())
sketch5.addGeometry(Part.LineSegment(V(48, 8.8, 0), V(48, 15.2, 0)), False)
sketch5.addGeometry(Part.LineSegment(V(48, 15.2, 0), V(54.4, 15.2, 0)), False)
sketch5.addGeometry(Part.LineSegment(V(54.4, 15.2, 0), V(54.4, 8.8, 0)), False)
sketch5.addGeometry(Part.LineSegment(V(54.4, 8.8, 0), V(48, 8.8, 0)), False)
sketch5.addGeometry(Part.LineSegment(V(105.6, 15.2, 0), V(105.6, 21.6, 0)), False)
sketch5.addGeometry(Part.LineSegment(V(105.6, 21.6, 0), V(112, 21.6, 0)), False)
sketch5.addGeometry(Part.LineSegment(V(112, 21.6, 0), V(112, 15.2, 0)), False)
sketch5.addGeometry(Part.LineSegment(V(112, 15.2, 0), V(105.6, 15.2, 0)), False)
sketch5.addConstraint(Sketcher.Constraint("Coincident", 0, 2, 1, 1))
sketch5.addConstraint(Sketcher.Constraint("Coincident", 1, 2, 2, 1))
sketch5.addConstraint(Sketcher.Constraint("Coincident", 2, 2, 3, 1))
sketch5.addConstraint(Sketcher.Constraint("Coincident", 3, 2, 0, 1))
sketch5.addConstraint(Sketcher.Constraint("Coincident", 4, 2, 5, 1))
sketch5.addConstraint(Sketcher.Constraint("Coincident", 5, 2, 6, 1))
sketch5.addConstraint(Sketcher.Constraint("Coincident", 6, 2, 7, 1))
sketch5.addConstraint(Sketcher.Constraint("Coincident", 7, 2, 4, 1))
sketch5.addConstraint(Sketcher.Constraint("Vertical", 0))
sketch5.addConstraint(Sketcher.Constraint("Horizontal", 1))
sketch5.addConstraint(Sketcher.Constraint("Vertical", 2))
sketch5.addConstraint(Sketcher.Constraint("Horizontal", 3))
sketch5.addConstraint(Sketcher.Constraint("Vertical", 4))
sketch5.addConstraint(Sketcher.Constraint("Horizontal", 5))
sketch5.addConstraint(Sketcher.Constraint("Vertical", 6))
sketch5.addConstraint(Sketcher.Constraint("Horizontal", 7))
sketch5.addConstraint(Sketcher.Constraint("Horizontal", 1, 2, 6, 2))
sketch5.addConstraint(Sketcher.Constraint("Equal", 3, 5))
sketch5.addConstraint(Sketcher.Constraint("Equal", 7, 0))
sketch5.addConstraint(Sketcher.Constraint("Equal", 2, 4))
sketch5.addConstraint(Sketcher.Constraint("DistanceX", 1, 1, 1, 2, Q("6.4 mm")))
sketch5.addConstraint(Sketcher.Constraint("DistanceX", -1, 1, 0, 2, Q("48 mm")))
sketch5.addConstraint(Sketcher.Constraint("DistanceX", -1, 1, 5, 2, Q("112 mm")))
sketch5.addConstraint(Sketcher.Constraint("DistanceY", -1, 1, 0, 2, Q("15.2 mm")))
pad4 = doc.addObject("PartDesign::Pad", "Pad003")
body.addObject(pad4)
pad4.Profile = sketch5
pad4.Length = 3.36
pad4.Reversed = True

doc.recompute()
